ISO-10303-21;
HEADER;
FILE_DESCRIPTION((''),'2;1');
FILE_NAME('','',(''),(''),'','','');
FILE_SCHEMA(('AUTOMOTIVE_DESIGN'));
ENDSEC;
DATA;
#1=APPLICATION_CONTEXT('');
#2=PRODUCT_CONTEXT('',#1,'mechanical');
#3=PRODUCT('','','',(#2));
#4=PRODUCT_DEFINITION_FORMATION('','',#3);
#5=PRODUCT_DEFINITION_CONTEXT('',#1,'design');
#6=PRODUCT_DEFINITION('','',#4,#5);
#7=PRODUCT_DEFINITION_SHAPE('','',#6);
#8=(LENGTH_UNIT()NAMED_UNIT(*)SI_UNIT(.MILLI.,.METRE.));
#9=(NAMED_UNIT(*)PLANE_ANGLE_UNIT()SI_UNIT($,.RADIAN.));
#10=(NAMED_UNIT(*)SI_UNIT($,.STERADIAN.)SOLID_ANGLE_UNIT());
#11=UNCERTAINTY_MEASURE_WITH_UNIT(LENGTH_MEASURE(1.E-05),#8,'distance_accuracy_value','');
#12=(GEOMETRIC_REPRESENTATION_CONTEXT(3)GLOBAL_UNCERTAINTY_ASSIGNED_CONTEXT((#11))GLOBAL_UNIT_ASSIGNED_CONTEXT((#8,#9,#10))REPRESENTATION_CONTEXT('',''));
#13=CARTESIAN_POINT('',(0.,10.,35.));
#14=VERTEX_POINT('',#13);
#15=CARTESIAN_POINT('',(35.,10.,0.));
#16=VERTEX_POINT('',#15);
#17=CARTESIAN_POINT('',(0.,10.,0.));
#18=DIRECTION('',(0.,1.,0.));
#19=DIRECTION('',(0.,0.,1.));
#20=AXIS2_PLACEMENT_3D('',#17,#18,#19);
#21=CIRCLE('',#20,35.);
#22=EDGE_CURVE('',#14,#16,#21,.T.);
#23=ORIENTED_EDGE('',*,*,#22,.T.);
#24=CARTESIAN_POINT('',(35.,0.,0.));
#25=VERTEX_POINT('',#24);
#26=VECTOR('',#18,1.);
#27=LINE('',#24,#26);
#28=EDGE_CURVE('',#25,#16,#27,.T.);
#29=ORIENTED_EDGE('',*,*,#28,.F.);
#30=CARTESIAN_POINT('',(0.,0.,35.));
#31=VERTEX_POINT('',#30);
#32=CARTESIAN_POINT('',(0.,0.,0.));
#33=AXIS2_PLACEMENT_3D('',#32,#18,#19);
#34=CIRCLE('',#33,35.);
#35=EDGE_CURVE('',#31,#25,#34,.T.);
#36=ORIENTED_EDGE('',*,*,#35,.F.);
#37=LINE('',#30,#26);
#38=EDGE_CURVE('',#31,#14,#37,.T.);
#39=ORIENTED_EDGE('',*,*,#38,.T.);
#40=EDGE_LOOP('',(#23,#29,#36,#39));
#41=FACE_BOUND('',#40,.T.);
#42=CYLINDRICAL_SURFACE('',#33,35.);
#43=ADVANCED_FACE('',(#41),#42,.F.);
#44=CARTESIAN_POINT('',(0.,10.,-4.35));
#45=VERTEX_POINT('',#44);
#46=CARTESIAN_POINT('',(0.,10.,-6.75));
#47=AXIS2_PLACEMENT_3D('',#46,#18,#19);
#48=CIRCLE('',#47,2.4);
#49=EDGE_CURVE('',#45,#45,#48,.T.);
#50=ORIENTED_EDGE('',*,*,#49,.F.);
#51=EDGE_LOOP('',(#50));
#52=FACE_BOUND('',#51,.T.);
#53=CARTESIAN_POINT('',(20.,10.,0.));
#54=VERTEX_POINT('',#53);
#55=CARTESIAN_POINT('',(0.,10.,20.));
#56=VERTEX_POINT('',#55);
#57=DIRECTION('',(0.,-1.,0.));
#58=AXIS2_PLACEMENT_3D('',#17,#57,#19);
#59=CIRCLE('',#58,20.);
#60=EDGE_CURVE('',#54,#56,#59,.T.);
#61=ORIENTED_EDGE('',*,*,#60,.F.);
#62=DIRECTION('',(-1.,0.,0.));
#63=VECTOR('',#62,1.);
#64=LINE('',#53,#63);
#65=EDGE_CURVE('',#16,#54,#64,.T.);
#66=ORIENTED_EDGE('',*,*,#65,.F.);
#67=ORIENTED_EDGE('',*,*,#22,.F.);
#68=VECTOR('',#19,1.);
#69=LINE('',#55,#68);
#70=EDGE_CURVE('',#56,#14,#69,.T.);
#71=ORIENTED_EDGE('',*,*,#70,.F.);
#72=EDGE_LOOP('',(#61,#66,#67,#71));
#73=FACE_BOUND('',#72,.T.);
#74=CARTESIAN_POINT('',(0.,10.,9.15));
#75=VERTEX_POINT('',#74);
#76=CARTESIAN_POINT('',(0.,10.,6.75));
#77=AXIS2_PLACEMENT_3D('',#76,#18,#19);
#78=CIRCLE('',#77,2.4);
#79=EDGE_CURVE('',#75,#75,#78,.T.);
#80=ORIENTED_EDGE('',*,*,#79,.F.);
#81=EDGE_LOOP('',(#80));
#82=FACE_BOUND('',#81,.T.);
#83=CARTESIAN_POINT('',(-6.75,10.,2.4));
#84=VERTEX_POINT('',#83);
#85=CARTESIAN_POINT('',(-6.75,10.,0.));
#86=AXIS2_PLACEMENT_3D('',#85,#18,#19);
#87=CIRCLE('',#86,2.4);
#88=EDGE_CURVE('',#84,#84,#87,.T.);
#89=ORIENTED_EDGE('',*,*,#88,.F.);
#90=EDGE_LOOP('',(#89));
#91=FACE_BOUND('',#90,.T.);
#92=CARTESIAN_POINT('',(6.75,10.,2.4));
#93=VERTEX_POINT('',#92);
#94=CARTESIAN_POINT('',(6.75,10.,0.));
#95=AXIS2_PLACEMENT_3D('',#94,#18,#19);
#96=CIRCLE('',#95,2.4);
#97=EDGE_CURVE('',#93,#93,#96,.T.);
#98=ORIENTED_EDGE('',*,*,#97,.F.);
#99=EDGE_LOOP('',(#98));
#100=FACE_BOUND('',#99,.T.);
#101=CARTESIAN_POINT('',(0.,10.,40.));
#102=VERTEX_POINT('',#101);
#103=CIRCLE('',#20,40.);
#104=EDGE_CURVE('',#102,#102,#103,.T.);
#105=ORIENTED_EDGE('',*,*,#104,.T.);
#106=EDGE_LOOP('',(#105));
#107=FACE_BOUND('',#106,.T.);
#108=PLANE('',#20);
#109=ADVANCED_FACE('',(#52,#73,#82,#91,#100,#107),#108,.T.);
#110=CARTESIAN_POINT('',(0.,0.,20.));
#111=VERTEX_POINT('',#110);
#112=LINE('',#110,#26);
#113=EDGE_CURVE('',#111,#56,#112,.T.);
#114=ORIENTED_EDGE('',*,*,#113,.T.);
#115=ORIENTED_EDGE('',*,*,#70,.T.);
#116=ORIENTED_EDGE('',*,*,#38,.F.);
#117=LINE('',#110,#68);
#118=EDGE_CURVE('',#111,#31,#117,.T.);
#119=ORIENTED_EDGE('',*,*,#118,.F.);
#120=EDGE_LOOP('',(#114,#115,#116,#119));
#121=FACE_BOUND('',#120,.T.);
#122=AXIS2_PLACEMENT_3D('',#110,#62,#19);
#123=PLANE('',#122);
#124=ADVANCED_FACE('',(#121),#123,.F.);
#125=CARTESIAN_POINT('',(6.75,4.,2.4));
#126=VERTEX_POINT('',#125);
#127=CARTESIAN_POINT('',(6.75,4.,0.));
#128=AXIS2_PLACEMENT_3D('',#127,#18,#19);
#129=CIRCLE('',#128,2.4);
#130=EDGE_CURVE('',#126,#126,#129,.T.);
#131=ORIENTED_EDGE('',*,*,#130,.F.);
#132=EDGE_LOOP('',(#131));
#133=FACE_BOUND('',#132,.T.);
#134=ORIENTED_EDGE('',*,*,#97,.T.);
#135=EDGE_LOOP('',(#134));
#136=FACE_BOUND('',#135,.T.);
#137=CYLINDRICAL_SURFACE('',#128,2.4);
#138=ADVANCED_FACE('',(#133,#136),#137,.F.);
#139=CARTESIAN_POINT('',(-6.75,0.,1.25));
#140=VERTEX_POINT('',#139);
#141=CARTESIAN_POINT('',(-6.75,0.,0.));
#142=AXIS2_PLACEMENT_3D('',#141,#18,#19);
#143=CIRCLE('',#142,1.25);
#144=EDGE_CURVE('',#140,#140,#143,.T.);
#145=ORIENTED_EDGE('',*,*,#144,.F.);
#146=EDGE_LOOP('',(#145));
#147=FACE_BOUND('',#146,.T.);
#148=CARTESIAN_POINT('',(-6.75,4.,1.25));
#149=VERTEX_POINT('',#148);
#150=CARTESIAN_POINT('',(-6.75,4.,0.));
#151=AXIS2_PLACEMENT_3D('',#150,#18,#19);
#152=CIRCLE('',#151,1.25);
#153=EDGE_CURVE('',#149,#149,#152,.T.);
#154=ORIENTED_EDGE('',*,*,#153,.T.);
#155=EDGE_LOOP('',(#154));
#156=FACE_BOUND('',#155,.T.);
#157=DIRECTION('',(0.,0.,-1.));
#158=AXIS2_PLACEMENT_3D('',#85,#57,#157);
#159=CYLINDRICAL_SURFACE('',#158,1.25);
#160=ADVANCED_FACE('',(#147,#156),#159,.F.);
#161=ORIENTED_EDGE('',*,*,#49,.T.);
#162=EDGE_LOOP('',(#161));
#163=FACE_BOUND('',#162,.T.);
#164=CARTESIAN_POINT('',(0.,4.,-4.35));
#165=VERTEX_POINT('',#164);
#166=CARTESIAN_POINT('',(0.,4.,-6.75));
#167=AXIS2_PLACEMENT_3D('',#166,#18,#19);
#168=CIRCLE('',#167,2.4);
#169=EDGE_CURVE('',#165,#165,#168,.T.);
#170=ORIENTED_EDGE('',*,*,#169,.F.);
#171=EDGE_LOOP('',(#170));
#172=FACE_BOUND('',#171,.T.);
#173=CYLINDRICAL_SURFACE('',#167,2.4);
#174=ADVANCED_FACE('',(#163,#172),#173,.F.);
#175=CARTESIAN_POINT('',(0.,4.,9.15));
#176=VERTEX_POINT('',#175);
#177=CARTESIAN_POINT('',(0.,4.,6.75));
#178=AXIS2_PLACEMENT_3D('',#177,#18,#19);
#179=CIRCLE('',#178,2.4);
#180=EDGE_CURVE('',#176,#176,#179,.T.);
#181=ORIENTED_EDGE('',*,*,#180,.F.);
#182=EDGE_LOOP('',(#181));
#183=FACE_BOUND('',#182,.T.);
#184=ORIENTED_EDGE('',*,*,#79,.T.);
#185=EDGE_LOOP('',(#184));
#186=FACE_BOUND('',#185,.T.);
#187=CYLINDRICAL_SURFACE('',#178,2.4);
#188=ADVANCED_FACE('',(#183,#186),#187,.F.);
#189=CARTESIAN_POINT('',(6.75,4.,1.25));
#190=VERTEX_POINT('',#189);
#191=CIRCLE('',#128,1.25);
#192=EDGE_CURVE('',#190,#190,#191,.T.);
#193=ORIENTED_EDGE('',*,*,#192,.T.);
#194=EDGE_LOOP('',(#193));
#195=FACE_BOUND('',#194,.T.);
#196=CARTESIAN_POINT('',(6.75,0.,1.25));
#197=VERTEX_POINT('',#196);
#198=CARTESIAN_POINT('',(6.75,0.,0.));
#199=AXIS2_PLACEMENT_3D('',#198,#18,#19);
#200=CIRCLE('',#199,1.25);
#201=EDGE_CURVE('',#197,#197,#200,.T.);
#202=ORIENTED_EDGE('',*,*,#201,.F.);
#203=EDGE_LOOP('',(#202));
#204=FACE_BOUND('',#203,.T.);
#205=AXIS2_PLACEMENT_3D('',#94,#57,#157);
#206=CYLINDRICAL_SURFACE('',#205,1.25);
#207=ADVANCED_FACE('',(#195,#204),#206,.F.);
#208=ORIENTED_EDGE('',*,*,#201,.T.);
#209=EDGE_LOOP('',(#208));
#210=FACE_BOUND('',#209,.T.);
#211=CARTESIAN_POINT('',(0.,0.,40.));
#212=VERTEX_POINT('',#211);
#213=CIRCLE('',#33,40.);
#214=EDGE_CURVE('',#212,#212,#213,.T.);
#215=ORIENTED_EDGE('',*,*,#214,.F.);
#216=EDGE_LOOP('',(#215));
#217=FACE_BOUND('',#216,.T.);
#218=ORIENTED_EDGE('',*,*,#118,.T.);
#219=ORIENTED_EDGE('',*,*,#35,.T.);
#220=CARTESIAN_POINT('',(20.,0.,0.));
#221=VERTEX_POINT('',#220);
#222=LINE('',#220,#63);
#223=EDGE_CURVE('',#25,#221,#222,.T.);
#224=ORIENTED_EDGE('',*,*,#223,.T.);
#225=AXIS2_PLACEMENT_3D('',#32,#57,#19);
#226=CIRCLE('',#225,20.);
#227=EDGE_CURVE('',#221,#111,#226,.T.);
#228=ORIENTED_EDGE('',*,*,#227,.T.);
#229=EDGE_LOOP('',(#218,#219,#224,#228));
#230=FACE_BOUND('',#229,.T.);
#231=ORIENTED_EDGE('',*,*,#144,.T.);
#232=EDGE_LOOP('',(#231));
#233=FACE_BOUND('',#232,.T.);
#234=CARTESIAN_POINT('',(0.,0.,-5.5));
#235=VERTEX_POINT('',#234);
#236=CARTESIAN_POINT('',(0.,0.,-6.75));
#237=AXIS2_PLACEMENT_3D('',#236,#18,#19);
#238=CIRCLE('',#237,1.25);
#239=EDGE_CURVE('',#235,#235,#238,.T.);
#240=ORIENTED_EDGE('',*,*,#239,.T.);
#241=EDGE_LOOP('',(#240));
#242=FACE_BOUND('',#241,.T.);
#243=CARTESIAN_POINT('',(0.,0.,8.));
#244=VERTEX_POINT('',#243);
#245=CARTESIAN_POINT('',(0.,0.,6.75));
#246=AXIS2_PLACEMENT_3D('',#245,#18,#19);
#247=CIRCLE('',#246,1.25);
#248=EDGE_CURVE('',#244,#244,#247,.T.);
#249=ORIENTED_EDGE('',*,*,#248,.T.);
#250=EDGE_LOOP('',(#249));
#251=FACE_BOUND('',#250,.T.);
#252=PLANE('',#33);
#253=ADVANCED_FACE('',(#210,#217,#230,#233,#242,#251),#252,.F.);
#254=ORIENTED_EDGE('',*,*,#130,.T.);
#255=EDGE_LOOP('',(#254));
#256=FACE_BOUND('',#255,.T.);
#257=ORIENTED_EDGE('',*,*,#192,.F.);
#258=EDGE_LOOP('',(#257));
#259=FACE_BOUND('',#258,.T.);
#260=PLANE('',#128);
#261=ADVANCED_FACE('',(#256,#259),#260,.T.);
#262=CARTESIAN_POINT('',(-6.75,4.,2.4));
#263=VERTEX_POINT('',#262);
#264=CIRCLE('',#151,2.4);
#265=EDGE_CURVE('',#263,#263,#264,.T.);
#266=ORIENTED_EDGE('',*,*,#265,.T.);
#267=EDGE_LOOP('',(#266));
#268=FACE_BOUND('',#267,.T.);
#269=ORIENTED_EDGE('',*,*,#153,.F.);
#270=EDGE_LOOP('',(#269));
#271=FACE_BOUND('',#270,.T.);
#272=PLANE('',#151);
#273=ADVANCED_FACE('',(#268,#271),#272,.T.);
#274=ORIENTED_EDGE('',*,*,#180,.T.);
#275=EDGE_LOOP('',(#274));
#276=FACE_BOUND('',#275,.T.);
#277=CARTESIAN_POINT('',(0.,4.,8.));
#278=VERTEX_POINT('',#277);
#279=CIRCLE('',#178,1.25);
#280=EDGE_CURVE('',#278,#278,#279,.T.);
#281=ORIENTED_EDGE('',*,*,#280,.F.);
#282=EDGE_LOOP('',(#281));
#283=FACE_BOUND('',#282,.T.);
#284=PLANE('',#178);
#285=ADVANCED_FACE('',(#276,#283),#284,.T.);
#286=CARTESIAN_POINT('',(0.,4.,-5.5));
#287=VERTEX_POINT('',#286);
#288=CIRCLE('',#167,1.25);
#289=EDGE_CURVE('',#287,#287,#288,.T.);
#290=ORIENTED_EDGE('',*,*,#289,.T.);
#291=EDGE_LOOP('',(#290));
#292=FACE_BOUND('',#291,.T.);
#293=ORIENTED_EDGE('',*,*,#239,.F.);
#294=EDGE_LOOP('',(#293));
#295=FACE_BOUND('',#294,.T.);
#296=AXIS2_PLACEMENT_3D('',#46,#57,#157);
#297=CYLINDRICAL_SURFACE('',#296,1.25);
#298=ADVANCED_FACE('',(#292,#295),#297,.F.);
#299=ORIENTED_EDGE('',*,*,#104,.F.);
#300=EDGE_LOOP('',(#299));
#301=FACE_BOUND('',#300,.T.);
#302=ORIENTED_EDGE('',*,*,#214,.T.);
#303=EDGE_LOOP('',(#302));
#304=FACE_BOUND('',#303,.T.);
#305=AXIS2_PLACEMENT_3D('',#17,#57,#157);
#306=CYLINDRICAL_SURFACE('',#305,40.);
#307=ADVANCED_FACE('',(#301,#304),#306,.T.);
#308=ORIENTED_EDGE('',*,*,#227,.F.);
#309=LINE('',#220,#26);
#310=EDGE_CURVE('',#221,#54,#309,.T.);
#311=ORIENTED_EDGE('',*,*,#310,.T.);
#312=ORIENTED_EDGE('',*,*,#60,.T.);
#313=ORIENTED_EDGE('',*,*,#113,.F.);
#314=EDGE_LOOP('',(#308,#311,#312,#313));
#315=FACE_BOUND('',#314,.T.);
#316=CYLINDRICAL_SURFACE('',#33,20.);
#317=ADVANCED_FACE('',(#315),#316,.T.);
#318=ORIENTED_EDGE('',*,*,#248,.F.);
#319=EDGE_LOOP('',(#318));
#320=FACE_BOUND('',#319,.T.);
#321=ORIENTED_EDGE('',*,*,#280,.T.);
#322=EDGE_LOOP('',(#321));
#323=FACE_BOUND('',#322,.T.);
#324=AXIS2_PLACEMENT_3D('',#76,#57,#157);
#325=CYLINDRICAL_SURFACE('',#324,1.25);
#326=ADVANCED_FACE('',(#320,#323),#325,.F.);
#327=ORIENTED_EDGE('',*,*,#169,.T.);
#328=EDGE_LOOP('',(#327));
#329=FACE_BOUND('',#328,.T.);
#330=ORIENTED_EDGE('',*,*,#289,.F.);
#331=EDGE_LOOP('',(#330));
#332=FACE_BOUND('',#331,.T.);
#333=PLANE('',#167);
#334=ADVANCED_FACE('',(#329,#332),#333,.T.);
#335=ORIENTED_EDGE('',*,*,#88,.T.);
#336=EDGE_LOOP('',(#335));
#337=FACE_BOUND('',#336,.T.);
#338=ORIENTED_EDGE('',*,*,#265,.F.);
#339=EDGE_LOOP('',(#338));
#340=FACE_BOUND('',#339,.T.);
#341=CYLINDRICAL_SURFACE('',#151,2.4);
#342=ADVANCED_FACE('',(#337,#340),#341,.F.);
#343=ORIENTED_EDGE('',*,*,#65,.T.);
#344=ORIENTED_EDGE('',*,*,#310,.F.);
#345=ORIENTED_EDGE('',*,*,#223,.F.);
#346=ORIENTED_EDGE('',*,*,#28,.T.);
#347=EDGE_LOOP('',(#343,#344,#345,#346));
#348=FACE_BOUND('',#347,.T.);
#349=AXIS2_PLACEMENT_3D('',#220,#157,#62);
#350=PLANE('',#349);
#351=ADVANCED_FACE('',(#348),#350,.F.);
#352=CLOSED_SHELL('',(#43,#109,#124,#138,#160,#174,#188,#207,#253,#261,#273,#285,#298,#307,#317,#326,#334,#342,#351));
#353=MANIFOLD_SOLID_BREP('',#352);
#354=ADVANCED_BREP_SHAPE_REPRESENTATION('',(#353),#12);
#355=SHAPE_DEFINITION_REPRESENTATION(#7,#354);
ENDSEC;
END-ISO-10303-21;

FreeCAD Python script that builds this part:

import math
import FreeCAD as App
import Part
import Sketcher
from FreeCAD import Vector
Q = App.Units.Quantity

doc = App.newDocument("Part")
body = doc.addObject("PartDesign::Body", "Body")

# Sketch on XZ plane
sketch1 = body.newObject("Sketcher::SketchObject", "Sketch")
sketch1.AttachmentSupport = (doc.getObject("XZ_Plane"), [""])
sketch1.MapMode = "FlatFace"
sketch1.addGeometry(Part.Circle(Vector(0, 0, 0), Vector(0, 0, 1), 40), False)
sketch1.addGeometry(Part.Circle(Vector(0, -6.8, 0), Vector(0, 0, 1), 1.2), False)
sketch1.addGeometry(Part.Circle(Vector(-6.8, 0, 0), Vector(0, 0, 1), 1.2), False)
sketch1.addGeometry(Part.Circle(Vector(6.8, 0, 0), Vector(0, 0, 1), 1.2), False)
sketch1.addGeometry(Part.Circle(Vector(0, 6.8, 0), Vector(0, 0, 1), 1.2), False)
sketch1.addConstraint(Sketcher.Constraint("Coincident", 0, 3, -1, 1))
sketch1.addConstraint(Sketcher.Constraint("Equal", 1, 2))
sketch1.addConstraint(Sketcher.Constraint("Equal", 2, 3))
sketch1.addConstraint(Sketcher.Constraint("Equal", 3, 4))
sketch1.addConstraint(Sketcher.Constraint("Symmetric", 2, 3, 3, 3, -1, 1))
sketch1.addConstraint(Sketcher.Constraint("Symmetric", 1, 3, 4, 3, -1, 1))
sketch1.addConstraint(Sketcher.Constraint("PointOnObject", 1, 3, -2))
sketch1.addConstraint(Sketcher.Constraint("PointOnObject", 2, 3, -1))
sketch1.addConstraint(Sketcher.Constraint("Diameter", 0, Q("80 mm")))
sketch1.addConstraint(Sketcher.Constraint("Diameter", 1, Q("2.5 mm")))
sketch1.addConstraint(Sketcher.Constraint("DistanceX", 2, 3, 3, 3, Q("13.5 mm")))
sketch1.addConstraint(Sketcher.Constraint("DistanceY", 1, 3, 4, 3, Q("13.5 mm")))
pad1 = body.newObject("PartDesign::Pad", "Pad")
pad1.Profile = sketch1
pad1.Length = 10
pad1.Reversed = True

# Sketch on XZ plane
sketch2 = body.newObject("Sketcher::SketchObject", "Sketch001")
sketch2.AttachmentSupport = (doc.getObject("XZ_Plane"), [""])
sketch2.MapMode = "FlatFace"
sketch2.AttachmentOffset = App.Placement(Vector(0, 0, -10), App.Rotation())
sketch2.addGeometry(Part.Circle(Vector(0, -6.8, 0), Vector(0, 0, 1), 2.4), False)
sketch2.addGeometry(Part.Circle(Vector(6.8, 0, 0), Vector(0, 0, 1), 2.4), False)
sketch2.addGeometry(Part.Circle(Vector(0, 6.8, 0), Vector(0, 0, 1), 2.4), False)
sketch2.addGeometry(Part.Circle(Vector(-6.8, 0, 0), Vector(0, 0, 1), 2.4), False)
sketch2.addConstraint(Sketcher.Constraint("Equal", 0, 1))
sketch2.addConstraint(Sketcher.Constraint("Equal", 1, 2))
sketch2.addConstraint(Sketcher.Constraint("Equal", 2, 3))
sketch2.addConstraint(Sketcher.Constraint("Symmetric", 0, 3, 2, 3, -1, 1))
sketch2.addConstraint(Sketcher.Constraint("Symmetric", 1, 3, 3, 3, -1, 1))
sketch2.addConstraint(Sketcher.Constraint("PointOnObject", 0, 3, -2))
sketch2.addConstraint(Sketcher.Constraint("PointOnObject", 1, 3, -1))
sketch2.addConstraint(Sketcher.Constraint("Diameter", 0, Q("4.8 mm")))
sketch2.addConstraint(Sketcher.Constraint("DistanceY", 0, 3, 2, 3, Q("13.5 mm")))
sketch2.addConstraint(Sketcher.Constraint("DistanceX", 3, 3, 1, 3, Q("13.5 mm")))
pocket1 = body.newObject("PartDesign::Pocket", "Pocket")
pocket1.Profile = sketch2
pocket1.Length = 6
pocket1.Reversed = True

# Sketch on XZ plane
sketch3 = body.newObject("Sketcher::SketchObject", "Sketch002")
sketch3.AttachmentSupport = (doc.getObject("XZ_Plane"), [""])
sketch3.MapMode = "FlatFace"
sketch3.AttachmentOffset = App.Placement(Vector(0, 0, -10), App.Rotation())
sketch3.addGeometry(Part.LineSegment(Vector(35, 0, 0), Vector(20, 0, 0)), False)
sketch3.addGeometry(Part.ArcOfCircle(Part.Circle(Vector(0, 0, 0), Vector(0, 0, 1), 20), math.radians(0), math.radians(90)), False)
sketch3.addGeometry(Part.LineSegment(Vector(0, 20, 0), Vector(0, 35, 0)), False)
sketch3.addGeometry(Part.ArcOfCircle(Part.Circle(Vector(0, 0, 0), Vector(0, 0, 1), 35), math.radians(0), math.radians(90)), False)
sketch3.addConstraint(Sketcher.Constraint("Coincident", 0, 2, 1, 1))
sketch3.addConstraint(Sketcher.Constraint("Coincident", 1, 2, 2, 1))
sketch3.addConstraint(Sketcher.Constraint("Coincident", 2, 2, 3, 2))
sketch3.addConstraint(Sketcher.Constraint("Coincident", 3, 1, 0, 1))
sketch3.addConstraint(Sketcher.Constraint("Horizontal", 0))
sketch3.addConstraint(Sketcher.Constraint("Vertical", 2))
sketch3.addConstraint(Sketcher.Constraint("Coincident", 1, 3, -1, 1))
sketch3.addConstraint(Sketcher.Constraint("Coincident", 3, 3, -1, 1))
sketch3.addConstraint(Sketcher.Constraint("PointOnObject", 0, 2, -1))
sketch3.addConstraint(Sketcher.Constraint("PointOnObject", 1, 2, -2))
sketch3.addConstraint(Sketcher.Constraint("Radius", 1, Q("20 mm")))
sketch3.addConstraint(Sketcher.Constraint("Radius", 3, Q("35 mm")))
pocket2 = body.newObject("PartDesign::Pocket", "Pocket001")
pocket2.Profile = sketch3
pocket2.Type = "ThroughAll"
pocket2.Reversed = True

doc.recompute()
